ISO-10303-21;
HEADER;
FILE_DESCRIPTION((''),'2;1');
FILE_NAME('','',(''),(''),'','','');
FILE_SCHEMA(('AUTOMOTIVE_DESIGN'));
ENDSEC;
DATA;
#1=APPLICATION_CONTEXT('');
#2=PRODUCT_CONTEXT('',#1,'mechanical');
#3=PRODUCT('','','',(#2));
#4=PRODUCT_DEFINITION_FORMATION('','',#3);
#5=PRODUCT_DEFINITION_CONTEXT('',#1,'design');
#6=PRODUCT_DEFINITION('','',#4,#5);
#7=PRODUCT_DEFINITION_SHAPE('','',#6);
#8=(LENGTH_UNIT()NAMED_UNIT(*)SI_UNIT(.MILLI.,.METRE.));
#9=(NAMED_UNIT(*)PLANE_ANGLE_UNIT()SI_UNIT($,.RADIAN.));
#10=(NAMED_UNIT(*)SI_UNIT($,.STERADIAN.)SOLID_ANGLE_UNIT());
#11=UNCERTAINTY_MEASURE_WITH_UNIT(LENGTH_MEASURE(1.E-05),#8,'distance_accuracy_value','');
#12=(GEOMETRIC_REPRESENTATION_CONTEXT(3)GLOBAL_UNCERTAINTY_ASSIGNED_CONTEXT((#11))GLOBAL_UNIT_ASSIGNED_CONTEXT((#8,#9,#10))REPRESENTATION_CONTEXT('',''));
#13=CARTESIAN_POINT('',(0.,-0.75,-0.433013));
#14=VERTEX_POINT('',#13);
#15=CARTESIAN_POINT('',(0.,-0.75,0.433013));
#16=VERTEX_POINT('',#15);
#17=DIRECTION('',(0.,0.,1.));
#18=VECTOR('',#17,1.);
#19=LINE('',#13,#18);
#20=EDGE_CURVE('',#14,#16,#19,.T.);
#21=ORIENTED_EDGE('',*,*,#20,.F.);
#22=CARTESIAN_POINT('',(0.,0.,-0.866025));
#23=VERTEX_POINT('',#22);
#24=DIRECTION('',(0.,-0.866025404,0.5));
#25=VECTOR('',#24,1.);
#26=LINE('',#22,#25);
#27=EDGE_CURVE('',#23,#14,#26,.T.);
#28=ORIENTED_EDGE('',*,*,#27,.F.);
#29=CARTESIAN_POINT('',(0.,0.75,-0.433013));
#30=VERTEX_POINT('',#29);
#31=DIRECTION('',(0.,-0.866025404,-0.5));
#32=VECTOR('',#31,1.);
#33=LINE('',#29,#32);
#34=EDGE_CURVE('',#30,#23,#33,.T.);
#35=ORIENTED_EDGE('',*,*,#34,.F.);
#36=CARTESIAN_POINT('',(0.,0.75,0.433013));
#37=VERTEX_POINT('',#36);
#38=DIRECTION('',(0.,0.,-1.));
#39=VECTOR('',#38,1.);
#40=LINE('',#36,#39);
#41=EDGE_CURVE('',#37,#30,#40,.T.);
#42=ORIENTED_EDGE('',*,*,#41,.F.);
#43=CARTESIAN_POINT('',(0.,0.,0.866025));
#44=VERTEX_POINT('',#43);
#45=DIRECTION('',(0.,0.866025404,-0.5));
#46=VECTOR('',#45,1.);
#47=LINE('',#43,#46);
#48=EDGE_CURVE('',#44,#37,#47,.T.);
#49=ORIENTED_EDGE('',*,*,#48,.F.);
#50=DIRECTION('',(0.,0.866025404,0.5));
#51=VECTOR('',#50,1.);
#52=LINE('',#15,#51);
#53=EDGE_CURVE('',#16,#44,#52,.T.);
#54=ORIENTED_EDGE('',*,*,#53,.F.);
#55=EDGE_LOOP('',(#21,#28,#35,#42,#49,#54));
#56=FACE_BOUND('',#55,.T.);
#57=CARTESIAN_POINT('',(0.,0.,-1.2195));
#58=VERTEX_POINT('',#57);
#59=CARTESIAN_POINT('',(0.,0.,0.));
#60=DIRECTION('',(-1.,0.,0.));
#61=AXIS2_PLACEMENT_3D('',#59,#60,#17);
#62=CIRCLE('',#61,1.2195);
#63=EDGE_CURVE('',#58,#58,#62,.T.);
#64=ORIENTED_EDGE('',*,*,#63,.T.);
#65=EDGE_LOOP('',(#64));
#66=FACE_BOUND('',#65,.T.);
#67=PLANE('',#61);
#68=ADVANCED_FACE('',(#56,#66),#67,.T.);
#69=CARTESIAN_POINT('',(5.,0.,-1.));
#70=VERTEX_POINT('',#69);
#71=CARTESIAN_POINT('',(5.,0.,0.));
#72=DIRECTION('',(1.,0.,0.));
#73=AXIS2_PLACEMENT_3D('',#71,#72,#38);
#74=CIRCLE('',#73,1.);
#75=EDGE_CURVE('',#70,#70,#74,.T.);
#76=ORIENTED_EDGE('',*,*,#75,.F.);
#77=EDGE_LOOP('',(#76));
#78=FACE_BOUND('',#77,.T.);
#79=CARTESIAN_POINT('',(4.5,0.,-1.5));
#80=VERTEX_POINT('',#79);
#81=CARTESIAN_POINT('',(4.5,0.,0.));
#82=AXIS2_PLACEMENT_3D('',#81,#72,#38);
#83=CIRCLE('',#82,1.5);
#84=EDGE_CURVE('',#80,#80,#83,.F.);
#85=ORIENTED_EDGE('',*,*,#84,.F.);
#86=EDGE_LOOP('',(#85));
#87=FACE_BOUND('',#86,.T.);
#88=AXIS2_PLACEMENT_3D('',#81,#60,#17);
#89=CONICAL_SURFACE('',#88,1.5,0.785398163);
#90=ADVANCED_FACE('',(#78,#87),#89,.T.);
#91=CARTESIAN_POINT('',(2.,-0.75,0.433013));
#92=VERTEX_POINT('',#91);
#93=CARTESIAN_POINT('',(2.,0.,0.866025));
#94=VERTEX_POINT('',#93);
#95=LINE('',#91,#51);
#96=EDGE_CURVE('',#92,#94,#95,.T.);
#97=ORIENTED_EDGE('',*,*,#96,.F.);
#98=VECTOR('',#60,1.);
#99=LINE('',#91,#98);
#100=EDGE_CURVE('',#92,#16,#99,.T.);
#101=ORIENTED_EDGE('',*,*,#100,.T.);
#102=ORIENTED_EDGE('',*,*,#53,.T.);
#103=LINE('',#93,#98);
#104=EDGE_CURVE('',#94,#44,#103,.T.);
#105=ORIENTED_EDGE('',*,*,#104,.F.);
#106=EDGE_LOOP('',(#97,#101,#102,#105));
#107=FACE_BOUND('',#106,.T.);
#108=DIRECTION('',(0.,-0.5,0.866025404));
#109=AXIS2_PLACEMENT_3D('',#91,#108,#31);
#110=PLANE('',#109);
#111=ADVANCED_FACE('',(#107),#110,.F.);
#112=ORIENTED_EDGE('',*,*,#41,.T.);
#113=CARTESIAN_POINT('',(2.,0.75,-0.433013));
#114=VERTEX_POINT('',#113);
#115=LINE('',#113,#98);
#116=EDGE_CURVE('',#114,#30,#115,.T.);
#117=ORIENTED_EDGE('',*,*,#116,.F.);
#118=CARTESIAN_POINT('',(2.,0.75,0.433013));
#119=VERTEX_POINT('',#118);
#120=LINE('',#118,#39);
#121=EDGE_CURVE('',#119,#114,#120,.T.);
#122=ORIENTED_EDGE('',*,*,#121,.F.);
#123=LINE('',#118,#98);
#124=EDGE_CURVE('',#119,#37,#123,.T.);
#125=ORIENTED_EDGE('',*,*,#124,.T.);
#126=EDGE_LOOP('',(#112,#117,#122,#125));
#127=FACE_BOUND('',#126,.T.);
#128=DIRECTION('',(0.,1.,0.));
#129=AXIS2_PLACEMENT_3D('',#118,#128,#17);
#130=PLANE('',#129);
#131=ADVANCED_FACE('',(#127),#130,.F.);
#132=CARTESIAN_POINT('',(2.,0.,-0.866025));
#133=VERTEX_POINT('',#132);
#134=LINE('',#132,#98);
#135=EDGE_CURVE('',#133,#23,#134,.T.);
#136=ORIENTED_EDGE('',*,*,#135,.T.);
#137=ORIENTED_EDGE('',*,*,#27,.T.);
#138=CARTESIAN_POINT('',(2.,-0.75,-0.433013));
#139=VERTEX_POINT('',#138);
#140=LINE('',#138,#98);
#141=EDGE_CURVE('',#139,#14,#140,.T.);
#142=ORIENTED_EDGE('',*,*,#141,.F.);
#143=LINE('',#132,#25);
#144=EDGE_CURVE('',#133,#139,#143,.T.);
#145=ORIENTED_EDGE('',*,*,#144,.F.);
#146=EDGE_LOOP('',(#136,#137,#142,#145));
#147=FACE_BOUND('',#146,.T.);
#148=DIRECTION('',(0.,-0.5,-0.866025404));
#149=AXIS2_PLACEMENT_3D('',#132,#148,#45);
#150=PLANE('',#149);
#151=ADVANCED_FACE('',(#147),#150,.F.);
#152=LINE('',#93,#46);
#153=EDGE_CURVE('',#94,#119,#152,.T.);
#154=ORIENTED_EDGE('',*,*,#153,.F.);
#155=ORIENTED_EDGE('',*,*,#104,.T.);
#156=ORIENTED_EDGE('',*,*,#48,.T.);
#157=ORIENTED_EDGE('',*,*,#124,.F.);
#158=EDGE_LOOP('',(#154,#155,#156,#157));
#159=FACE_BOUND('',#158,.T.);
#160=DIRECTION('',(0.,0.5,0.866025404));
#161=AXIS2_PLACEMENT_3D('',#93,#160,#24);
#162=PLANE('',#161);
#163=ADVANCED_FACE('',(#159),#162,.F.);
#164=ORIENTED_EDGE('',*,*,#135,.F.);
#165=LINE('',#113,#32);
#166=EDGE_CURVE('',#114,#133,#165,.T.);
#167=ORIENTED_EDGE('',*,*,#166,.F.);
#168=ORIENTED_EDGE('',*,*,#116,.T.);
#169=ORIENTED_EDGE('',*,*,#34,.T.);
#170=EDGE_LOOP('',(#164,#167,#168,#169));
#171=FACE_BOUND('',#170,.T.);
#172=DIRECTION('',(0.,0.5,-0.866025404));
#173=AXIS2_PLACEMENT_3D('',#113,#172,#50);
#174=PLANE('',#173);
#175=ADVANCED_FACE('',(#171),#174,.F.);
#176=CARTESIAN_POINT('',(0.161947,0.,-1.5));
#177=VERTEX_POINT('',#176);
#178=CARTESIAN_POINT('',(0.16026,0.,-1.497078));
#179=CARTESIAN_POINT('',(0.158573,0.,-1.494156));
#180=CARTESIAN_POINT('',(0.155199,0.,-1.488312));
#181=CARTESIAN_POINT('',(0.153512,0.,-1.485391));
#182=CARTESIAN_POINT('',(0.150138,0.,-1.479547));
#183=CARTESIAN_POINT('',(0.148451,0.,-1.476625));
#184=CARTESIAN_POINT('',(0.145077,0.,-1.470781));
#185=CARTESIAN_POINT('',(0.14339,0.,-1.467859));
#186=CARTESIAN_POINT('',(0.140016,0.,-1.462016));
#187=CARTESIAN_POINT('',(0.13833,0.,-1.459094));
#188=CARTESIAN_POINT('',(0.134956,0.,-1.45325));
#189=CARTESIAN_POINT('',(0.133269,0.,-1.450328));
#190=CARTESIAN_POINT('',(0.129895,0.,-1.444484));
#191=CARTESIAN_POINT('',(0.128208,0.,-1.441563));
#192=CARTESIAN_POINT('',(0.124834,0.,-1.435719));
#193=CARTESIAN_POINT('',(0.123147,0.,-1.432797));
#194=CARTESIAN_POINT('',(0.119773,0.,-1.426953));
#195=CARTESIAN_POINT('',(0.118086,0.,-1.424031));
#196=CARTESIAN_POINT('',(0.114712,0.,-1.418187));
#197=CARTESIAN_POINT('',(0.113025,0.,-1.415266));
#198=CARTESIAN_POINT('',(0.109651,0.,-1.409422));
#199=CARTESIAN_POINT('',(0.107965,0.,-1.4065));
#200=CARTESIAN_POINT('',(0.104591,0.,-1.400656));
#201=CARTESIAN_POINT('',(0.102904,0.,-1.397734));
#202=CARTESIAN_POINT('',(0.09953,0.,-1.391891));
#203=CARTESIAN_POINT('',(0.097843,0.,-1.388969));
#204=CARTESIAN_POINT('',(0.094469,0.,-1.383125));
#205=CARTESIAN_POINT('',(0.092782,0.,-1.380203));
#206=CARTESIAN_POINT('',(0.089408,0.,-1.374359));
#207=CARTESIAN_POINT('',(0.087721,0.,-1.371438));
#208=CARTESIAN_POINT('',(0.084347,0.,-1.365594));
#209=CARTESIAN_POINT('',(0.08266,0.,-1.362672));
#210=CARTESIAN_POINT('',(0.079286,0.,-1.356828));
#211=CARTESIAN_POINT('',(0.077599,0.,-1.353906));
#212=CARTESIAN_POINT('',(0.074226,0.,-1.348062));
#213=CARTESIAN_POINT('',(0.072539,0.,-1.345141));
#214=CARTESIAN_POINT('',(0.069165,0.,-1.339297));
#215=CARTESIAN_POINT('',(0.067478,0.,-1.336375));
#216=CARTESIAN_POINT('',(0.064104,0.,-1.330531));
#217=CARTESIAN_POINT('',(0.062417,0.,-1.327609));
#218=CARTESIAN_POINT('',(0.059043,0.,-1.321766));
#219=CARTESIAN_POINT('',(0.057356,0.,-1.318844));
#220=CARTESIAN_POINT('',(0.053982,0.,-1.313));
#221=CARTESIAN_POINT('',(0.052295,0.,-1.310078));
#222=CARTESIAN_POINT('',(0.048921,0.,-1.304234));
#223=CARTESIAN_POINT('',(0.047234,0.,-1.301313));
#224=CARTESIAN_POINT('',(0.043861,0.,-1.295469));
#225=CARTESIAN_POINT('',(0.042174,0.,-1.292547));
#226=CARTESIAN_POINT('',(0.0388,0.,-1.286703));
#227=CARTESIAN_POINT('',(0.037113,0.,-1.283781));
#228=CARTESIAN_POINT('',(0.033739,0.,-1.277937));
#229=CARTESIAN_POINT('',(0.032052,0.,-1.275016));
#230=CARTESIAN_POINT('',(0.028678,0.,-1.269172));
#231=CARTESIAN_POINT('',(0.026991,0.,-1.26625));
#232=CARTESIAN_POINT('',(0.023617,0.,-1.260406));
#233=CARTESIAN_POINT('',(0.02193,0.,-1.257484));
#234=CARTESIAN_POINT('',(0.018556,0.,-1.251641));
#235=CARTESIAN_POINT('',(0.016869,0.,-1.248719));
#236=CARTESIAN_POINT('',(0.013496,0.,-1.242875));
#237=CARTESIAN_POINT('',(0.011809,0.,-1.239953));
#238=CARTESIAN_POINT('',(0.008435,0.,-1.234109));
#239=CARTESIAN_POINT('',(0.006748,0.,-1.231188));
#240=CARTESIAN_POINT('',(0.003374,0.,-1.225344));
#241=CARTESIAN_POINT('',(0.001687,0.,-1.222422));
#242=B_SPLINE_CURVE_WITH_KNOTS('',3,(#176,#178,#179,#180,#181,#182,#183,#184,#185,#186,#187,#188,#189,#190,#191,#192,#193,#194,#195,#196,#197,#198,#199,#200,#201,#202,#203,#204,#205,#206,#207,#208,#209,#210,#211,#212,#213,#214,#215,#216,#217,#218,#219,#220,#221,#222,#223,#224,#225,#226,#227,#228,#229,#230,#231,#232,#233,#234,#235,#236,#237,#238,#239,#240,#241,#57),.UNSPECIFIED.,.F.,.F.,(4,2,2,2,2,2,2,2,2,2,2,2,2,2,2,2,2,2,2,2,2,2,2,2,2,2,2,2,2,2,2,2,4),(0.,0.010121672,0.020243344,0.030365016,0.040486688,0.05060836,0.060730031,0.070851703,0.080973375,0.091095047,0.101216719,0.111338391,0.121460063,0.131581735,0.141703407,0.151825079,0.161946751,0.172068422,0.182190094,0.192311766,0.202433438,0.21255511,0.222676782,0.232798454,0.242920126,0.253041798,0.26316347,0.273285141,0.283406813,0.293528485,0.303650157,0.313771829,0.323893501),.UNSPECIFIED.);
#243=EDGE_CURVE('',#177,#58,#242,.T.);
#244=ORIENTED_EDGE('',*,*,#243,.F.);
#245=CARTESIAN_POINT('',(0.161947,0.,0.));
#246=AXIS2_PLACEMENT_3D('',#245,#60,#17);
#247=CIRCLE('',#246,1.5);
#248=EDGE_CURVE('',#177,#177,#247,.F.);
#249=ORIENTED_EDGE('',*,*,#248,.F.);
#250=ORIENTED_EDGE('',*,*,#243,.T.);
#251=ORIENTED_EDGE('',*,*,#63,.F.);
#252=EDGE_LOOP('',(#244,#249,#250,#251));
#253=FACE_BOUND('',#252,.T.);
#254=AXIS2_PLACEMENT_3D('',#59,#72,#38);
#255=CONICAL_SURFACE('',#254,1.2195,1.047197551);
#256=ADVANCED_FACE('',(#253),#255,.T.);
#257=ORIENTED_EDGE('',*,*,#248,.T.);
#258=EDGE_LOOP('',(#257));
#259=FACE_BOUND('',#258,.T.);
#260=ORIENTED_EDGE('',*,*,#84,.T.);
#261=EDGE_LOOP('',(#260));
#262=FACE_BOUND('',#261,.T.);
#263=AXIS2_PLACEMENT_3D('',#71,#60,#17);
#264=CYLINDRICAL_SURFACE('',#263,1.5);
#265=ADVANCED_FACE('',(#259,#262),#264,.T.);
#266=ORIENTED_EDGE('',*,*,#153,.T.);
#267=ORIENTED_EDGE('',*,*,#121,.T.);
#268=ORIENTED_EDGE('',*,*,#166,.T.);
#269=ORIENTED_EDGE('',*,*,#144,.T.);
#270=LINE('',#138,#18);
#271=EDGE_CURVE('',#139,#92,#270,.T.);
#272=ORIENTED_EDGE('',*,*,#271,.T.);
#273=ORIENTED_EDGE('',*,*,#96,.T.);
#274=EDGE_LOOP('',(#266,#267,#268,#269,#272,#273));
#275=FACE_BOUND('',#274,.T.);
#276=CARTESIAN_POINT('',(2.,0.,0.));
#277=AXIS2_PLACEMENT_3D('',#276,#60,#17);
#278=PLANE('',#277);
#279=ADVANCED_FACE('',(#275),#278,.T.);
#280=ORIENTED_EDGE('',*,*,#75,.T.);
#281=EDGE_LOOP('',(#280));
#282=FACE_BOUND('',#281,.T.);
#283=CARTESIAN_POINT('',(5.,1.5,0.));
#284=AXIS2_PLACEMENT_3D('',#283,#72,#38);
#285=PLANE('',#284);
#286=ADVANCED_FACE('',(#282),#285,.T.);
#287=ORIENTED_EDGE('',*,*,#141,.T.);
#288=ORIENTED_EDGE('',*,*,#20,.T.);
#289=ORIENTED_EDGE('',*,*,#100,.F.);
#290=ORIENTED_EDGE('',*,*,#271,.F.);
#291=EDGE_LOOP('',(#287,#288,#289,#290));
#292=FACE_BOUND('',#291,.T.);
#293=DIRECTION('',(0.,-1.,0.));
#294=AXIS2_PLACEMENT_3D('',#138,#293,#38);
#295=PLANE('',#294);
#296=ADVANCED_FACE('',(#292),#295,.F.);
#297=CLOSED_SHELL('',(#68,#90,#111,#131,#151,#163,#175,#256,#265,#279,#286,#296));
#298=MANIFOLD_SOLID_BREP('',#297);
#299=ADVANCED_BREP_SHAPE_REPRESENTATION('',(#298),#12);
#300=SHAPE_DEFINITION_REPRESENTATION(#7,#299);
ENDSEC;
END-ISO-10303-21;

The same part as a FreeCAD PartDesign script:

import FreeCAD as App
import Part
import Sketcher
Q = App.Units.Quantity


def edges_at(feature, points):
    """Names of the edges that pass closest to the given points."""
    edges = feature.Shape.Edges
    near = lambda p: min(range(len(edges)), key=lambda i: edges[i].distToShape(Part.Vertex(*p))[0])
    return sorted({f"Edge{near(p) + 1}" for p in points})


def add_polygon(sketch, points):
    """Adds a closed chain of lines whose ends are joined by coincident constraints."""
    first, n = sketch.GeometryCount, len(points)
    for a, b in zip(points, points[1:] + points[:1]):
        sketch.addGeometry(Part.LineSegment(App.Vector(*a, 0), App.Vector(*b, 0)), False)
    for i in range(n):
        sketch.addConstraint(Sketcher.Constraint("Coincident", first + i, 2, first + (i + 1) % n, 1))

doc = App.newDocument("Part")
body = doc.addObject("PartDesign::Body", "Body")

# Sketch on XY plane
sketch1 = body.newObject("Sketcher::SketchObject", "Sketch")
sketch1.AttachmentSupport = (doc.getObject("XY_Plane"), [""])
sketch1.MapMode = "FlatFace"
add_polygon(sketch1, [(5, 1.5), (5, 0), (0, 0), (0, 1.5)])  # lines 0-3
sketch1.addConstraint([
    Sketcher.Constraint("Vertical", 0),
    Sketcher.Constraint("Horizontal", 1),
    Sketcher.Constraint("Vertical", 2),
    Sketcher.Constraint("Horizontal", 3),
    Sketcher.Constraint("Coincident", 1, 2, -1, 1),
    Sketcher.Constraint("DistanceX", 1, 2, 1, 1, Q("5 mm")),
    Sketcher.Constraint("DistanceY", 0, 2, 0, 1, Q("1.5 mm")),
])
revolution = body.newObject("PartDesign::Revolution", "Revolution")
revolution.Profile = sketch1
revolution.ReferenceAxis = (sketch1, ["H_Axis"])
revolution.Angle = 360

# Sketch on YZ plane
sketch2 = body.newObject("Sketcher::SketchObject", "Sketch001")
sketch2.AttachmentSupport = (doc.getObject("YZ_Plane"), [""])
sketch2.MapMode = "FlatFace"
add_polygon(sketch2, [(-0.8, 0.4), (0, 0.9), (0.8, 0.4), (0.8, -0.4), (0, -0.9), (-0.8, -0.4)])  # lines 0-5
sketch2.addConstraint([
    Sketcher.Constraint("Vertical", 2),
    Sketcher.Constraint("Vertical", 5),
    Sketcher.Constraint("Symmetric", 0, 2, 3, 2, -1, 1),
    Sketcher.Constraint("Symmetric", 1, 2, 4, 2, -1, 1),
    Sketcher.Constraint("PointOnObject", 0, 2, -2),
    Sketcher.Constraint("Parallel", 0, 3),
    Sketcher.Constraint("Horizontal", 2, 2, 4, 2),
    Sketcher.Constraint("Angle", 0, Q("30 deg")),
    Sketcher.Constraint("DistanceX", 4, 2, 2, 2, Q("1.5 mm")),
    Sketcher.Constraint("DistanceY", 2, 2, 2, 1, Q("0.866025 mm")),
])
pocket1 = body.newObject("PartDesign::Pocket", "Pocket")
pocket1.Profile = sketch2
pocket1.Length = 2
pocket1.Reversed = True
doc.recompute()

chamfer = body.newObject("PartDesign::Chamfer", "Chamfer")
chamfer.Base = (pocket1, edges_at(pocket1, [(5, 0, -1.5)]))
chamfer.Size = 0.5
doc.recompute()

chamfer2 = body.newObject("PartDesign::Chamfer", "Chamfer001")
chamfer2.Base = (chamfer, edges_at(chamfer, [(0, 0, -1.5)]))
chamfer2.ChamferType = "Two distances"
chamfer2.Size = 0.2805
chamfer2.Size2 = 0.161947
chamfer2.FlipDirection = True

doc.recompute()
